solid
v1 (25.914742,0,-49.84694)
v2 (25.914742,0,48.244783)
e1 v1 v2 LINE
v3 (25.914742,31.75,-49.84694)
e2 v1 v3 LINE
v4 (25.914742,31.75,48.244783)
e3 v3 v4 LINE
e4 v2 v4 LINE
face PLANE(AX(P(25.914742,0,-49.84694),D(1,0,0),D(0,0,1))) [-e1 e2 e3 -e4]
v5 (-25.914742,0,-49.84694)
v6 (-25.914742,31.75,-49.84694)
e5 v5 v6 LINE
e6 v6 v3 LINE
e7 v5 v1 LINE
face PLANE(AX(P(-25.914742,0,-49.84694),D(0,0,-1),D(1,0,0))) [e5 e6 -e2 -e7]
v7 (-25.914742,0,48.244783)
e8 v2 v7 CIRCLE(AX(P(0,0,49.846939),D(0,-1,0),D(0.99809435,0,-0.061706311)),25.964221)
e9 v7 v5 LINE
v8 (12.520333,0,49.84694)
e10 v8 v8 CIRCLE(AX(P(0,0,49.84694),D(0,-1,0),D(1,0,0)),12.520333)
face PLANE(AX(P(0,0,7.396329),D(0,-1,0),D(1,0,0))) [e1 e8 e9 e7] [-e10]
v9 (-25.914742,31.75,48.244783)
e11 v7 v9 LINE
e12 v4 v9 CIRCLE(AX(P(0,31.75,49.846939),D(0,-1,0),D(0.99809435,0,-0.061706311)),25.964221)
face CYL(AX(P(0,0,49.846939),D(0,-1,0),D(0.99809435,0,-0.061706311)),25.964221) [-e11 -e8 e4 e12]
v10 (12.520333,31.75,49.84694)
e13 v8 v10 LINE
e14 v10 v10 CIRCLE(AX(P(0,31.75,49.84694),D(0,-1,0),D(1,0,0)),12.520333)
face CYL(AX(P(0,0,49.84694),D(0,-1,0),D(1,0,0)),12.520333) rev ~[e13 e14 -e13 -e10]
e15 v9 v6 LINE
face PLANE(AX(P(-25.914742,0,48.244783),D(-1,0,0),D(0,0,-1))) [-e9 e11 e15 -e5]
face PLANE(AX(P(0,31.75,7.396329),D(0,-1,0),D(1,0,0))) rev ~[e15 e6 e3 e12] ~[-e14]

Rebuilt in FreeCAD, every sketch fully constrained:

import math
import FreeCAD as App
import Part
import Sketcher
Q = App.Units.Quantity

doc = App.newDocument("Part")
body = doc.addObject("PartDesign::Body", "Body")

# Sketch on XZ plane
sketch1 = body.newObject("Sketcher::SketchObject", "Sketch")
sketch1.AttachmentSupport = (doc.getObject("XZ_Plane"), [""])
sketch1.MapMode = "FlatFace"
sketch1.addGeometry([
    Part.LineSegment(App.Vector(-26, -50, 0), App.Vector(26, -50, 0)),  # 0
    Part.LineSegment(App.Vector(26, -50, 0), App.Vector(26, 48, 0)),  # 1
    Part.ArcOfCircle(Part.Circle(App.Vector(0, 50, 0), App.Vector(0, 0, 1), 26), math.radians(-4), math.radians(184)),  # 2
    Part.LineSegment(App.Vector(-26, 48, 0), App.Vector(-26, -50, 0)),  # 3
    Part.Circle(App.Vector(0, 50, 0), App.Vector(0, 0, 1), 13),  # 4
], False)
sketch1.addConstraint([
    Sketcher.Constraint("Coincident", 0, 2, 1, 1),
    Sketcher.Constraint("Coincident", 1, 2, 2, 1),
    Sketcher.Constraint("Coincident", 2, 2, 3, 1),
    Sketcher.Constraint("Coincident", 3, 2, 0, 1),
    Sketcher.Constraint("Horizontal", 0),
    Sketcher.Constraint("Vertical", 1),
    Sketcher.Constraint("Vertical", 3),
    Sketcher.Constraint("Coincident", 4, 3, 2, 3),
    Sketcher.Constraint("Symmetric", 1, 2, 2, 2, -2),
    Sketcher.Constraint("Radius", 2, Q("25.964221 mm")),
    Sketcher.Constraint("Diameter", 4, Q("25.040666 mm")),
    Sketcher.Constraint("DistanceX", 0, 1, 0, 2, Q("51.829484 mm")),
    Sketcher.Constraint("DistanceY", 1, 1, 1, 2, Q("98.091723 mm")),
    Sketcher.Constraint("DistanceY", -1, 1, 2, 3, Q("49.846939 mm")),
])
pad1 = body.newObject("PartDesign::Pad", "Pad")
pad1.Profile = sketch1
pad1.Length = Q("1.25 in")
pad1.Reversed = True

doc.recompute()
